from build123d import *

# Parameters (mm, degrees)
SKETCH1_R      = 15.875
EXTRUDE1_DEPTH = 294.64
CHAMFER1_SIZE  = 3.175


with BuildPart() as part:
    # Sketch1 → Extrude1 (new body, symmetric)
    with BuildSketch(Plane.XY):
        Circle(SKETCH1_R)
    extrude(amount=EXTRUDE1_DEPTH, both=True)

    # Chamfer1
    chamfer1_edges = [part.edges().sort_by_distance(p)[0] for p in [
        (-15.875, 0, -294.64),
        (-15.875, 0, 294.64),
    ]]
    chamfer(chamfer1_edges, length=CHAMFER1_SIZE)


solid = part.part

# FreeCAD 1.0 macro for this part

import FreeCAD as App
import Part
import Sketcher
Q = App.Units.Quantity


def edges_at(feature, points):
    """Names of the edges that pass closest to the given points."""
    edges = feature.Shape.Edges
    near = lambda p: min(range(len(edges)), key=lambda i: edges[i].distToShape(Part.Vertex(*p))[0])
    return sorted({f"Edge{near(p) + 1}" for p in points})

doc = App.newDocument("Part")
body = doc.addObject("PartDesign::Body", "Body")

sketch1 = doc.addObject("Sketcher::SketchObject", "Sketch")
body.addObject(sketch1)
sketch1.AttachmentSupport = (doc.XY_Plane, [""])
sketch1.MapMode = "FlatFace"
sketch1.addGeometry(Part.Circle(App.Vector(0, 0, 0), App.Vector(0, 0, 1), 16), False)
sketch1.addConstraint([
    Sketcher.Constraint("Coincident", 0, 3, -1, 1),
    Sketcher.Constraint("Diameter", 0, Q("1.25 in")),
])
pad1 = doc.addObject("PartDesign::Pad", "Pad")
body.addObject(pad1)
pad1.Profile = sketch1
pad1.Length = Q("23.2 in")
pad1.Midplane = True
doc.recompute()

chamfer = doc.addObject("PartDesign::Chamfer", "Chamfer")
body.addObject(chamfer)
chamfer.Base = (pad1, edges_at(pad1, [(-15.875, 0, -294.64), (-15.875, 0, 294.64)]))
chamfer.Size = Q("0.125 in")

doc.recompute()
